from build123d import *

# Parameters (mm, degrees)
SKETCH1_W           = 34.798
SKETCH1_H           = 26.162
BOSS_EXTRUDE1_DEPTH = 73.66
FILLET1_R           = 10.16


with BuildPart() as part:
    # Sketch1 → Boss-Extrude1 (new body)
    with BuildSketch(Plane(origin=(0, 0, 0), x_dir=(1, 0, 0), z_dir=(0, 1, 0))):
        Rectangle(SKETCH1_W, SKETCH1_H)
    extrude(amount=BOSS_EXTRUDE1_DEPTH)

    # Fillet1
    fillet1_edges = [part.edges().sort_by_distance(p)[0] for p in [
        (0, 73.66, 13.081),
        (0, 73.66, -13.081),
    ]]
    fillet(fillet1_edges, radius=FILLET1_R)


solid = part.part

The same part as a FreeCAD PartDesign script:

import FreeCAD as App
import Part
import Sketcher
from FreeCAD import Vector
Q = App.Units.Quantity


def edges_at(feature, points):
    """Names of the edges that pass closest to the given points."""
    edges = feature.Shape.Edges
    near = lambda p: min(range(len(edges)), key=lambda i: edges[i].distToShape(Part.Vertex(*p))[0])
    return sorted({f"Edge{near(p) + 1}" for p in points})


def add_polygon(sketch, points):
    """Adds a closed chain of lines whose ends are joined by coincident constraints."""
    first, n = sketch.GeometryCount, len(points)
    for a, b in zip(points, points[1:] + points[:1]):
        sketch.addGeometry(Part.LineSegment(App.Vector(*a, 0), App.Vector(*b, 0)), False)
    for i in range(n):
        sketch.addConstraint(Sketcher.Constraint("Coincident", first + i, 2, first + (i + 1) % n, 1))

doc = App.newDocument("Part")
params = doc.addObject("Spreadsheet::Sheet", "Params")
for row, (alias, value) in enumerate([
    ("sketch1_width", "1.37 in"),
    ("sketch1_height", "1.03 in"),
    ("pad1_length", "2.9 in"),
    ("fillet_radius", "0.4 in"),
], start=1):
    params.set(f"A{row}", alias)
    params.set(f"B{row}", "=" + value)
    params.setAlias(f"B{row}", alias)

body = doc.addObject("PartDesign::Body", "Body")

# Sketch on XZ plane
sketch1 = doc.addObject("Sketcher::SketchObject", "Sketch")
body.addObject(sketch1)
sketch1.AttachmentSupport = (doc.XZ_Plane, [""])
sketch1.MapMode = "FlatFace"
add_polygon(sketch1, [(-17, -13), (-17, 13), (17, 13), (17, -13)])  # lines 0-3
sketch1.addConstraint([
    Sketcher.Constraint("Vertical", 0),
    Sketcher.Constraint("Horizontal", 1),
    Sketcher.Constraint("Vertical", 2),
    Sketcher.Constraint("Horizontal", 3),
    Sketcher.Constraint("Symmetric", 0, 2, 2, 2, -1, 1),
    Sketcher.Constraint("DistanceX", 1, 1, 1, 2, Q("1.37 in")),
    Sketcher.Constraint("DistanceY", 0, 1, 0, 2, Q("1.03 in")),
])
sketch1.setExpression("Constraints[9]", "Params.sketch1_width")
sketch1.setExpression("Constraints[10]", "Params.sketch1_height")
pad1 = doc.addObject("PartDesign::Pad", "Pad")
body.addObject(pad1)
pad1.Profile = sketch1
pad1.setExpression("Length", "Params.pad1_length")
pad1.Reversed = True
doc.recompute()

fillet = doc.addObject("PartDesign::Fillet", "Fillet")
body.addObject(fillet)
fillet.Base = (pad1, edges_at(pad1, [(0, 73.66, 13.081), (0, 73.66, -13.081)]))
fillet.setExpression("Radius", "Params.fillet_radius")

doc.recompute()
